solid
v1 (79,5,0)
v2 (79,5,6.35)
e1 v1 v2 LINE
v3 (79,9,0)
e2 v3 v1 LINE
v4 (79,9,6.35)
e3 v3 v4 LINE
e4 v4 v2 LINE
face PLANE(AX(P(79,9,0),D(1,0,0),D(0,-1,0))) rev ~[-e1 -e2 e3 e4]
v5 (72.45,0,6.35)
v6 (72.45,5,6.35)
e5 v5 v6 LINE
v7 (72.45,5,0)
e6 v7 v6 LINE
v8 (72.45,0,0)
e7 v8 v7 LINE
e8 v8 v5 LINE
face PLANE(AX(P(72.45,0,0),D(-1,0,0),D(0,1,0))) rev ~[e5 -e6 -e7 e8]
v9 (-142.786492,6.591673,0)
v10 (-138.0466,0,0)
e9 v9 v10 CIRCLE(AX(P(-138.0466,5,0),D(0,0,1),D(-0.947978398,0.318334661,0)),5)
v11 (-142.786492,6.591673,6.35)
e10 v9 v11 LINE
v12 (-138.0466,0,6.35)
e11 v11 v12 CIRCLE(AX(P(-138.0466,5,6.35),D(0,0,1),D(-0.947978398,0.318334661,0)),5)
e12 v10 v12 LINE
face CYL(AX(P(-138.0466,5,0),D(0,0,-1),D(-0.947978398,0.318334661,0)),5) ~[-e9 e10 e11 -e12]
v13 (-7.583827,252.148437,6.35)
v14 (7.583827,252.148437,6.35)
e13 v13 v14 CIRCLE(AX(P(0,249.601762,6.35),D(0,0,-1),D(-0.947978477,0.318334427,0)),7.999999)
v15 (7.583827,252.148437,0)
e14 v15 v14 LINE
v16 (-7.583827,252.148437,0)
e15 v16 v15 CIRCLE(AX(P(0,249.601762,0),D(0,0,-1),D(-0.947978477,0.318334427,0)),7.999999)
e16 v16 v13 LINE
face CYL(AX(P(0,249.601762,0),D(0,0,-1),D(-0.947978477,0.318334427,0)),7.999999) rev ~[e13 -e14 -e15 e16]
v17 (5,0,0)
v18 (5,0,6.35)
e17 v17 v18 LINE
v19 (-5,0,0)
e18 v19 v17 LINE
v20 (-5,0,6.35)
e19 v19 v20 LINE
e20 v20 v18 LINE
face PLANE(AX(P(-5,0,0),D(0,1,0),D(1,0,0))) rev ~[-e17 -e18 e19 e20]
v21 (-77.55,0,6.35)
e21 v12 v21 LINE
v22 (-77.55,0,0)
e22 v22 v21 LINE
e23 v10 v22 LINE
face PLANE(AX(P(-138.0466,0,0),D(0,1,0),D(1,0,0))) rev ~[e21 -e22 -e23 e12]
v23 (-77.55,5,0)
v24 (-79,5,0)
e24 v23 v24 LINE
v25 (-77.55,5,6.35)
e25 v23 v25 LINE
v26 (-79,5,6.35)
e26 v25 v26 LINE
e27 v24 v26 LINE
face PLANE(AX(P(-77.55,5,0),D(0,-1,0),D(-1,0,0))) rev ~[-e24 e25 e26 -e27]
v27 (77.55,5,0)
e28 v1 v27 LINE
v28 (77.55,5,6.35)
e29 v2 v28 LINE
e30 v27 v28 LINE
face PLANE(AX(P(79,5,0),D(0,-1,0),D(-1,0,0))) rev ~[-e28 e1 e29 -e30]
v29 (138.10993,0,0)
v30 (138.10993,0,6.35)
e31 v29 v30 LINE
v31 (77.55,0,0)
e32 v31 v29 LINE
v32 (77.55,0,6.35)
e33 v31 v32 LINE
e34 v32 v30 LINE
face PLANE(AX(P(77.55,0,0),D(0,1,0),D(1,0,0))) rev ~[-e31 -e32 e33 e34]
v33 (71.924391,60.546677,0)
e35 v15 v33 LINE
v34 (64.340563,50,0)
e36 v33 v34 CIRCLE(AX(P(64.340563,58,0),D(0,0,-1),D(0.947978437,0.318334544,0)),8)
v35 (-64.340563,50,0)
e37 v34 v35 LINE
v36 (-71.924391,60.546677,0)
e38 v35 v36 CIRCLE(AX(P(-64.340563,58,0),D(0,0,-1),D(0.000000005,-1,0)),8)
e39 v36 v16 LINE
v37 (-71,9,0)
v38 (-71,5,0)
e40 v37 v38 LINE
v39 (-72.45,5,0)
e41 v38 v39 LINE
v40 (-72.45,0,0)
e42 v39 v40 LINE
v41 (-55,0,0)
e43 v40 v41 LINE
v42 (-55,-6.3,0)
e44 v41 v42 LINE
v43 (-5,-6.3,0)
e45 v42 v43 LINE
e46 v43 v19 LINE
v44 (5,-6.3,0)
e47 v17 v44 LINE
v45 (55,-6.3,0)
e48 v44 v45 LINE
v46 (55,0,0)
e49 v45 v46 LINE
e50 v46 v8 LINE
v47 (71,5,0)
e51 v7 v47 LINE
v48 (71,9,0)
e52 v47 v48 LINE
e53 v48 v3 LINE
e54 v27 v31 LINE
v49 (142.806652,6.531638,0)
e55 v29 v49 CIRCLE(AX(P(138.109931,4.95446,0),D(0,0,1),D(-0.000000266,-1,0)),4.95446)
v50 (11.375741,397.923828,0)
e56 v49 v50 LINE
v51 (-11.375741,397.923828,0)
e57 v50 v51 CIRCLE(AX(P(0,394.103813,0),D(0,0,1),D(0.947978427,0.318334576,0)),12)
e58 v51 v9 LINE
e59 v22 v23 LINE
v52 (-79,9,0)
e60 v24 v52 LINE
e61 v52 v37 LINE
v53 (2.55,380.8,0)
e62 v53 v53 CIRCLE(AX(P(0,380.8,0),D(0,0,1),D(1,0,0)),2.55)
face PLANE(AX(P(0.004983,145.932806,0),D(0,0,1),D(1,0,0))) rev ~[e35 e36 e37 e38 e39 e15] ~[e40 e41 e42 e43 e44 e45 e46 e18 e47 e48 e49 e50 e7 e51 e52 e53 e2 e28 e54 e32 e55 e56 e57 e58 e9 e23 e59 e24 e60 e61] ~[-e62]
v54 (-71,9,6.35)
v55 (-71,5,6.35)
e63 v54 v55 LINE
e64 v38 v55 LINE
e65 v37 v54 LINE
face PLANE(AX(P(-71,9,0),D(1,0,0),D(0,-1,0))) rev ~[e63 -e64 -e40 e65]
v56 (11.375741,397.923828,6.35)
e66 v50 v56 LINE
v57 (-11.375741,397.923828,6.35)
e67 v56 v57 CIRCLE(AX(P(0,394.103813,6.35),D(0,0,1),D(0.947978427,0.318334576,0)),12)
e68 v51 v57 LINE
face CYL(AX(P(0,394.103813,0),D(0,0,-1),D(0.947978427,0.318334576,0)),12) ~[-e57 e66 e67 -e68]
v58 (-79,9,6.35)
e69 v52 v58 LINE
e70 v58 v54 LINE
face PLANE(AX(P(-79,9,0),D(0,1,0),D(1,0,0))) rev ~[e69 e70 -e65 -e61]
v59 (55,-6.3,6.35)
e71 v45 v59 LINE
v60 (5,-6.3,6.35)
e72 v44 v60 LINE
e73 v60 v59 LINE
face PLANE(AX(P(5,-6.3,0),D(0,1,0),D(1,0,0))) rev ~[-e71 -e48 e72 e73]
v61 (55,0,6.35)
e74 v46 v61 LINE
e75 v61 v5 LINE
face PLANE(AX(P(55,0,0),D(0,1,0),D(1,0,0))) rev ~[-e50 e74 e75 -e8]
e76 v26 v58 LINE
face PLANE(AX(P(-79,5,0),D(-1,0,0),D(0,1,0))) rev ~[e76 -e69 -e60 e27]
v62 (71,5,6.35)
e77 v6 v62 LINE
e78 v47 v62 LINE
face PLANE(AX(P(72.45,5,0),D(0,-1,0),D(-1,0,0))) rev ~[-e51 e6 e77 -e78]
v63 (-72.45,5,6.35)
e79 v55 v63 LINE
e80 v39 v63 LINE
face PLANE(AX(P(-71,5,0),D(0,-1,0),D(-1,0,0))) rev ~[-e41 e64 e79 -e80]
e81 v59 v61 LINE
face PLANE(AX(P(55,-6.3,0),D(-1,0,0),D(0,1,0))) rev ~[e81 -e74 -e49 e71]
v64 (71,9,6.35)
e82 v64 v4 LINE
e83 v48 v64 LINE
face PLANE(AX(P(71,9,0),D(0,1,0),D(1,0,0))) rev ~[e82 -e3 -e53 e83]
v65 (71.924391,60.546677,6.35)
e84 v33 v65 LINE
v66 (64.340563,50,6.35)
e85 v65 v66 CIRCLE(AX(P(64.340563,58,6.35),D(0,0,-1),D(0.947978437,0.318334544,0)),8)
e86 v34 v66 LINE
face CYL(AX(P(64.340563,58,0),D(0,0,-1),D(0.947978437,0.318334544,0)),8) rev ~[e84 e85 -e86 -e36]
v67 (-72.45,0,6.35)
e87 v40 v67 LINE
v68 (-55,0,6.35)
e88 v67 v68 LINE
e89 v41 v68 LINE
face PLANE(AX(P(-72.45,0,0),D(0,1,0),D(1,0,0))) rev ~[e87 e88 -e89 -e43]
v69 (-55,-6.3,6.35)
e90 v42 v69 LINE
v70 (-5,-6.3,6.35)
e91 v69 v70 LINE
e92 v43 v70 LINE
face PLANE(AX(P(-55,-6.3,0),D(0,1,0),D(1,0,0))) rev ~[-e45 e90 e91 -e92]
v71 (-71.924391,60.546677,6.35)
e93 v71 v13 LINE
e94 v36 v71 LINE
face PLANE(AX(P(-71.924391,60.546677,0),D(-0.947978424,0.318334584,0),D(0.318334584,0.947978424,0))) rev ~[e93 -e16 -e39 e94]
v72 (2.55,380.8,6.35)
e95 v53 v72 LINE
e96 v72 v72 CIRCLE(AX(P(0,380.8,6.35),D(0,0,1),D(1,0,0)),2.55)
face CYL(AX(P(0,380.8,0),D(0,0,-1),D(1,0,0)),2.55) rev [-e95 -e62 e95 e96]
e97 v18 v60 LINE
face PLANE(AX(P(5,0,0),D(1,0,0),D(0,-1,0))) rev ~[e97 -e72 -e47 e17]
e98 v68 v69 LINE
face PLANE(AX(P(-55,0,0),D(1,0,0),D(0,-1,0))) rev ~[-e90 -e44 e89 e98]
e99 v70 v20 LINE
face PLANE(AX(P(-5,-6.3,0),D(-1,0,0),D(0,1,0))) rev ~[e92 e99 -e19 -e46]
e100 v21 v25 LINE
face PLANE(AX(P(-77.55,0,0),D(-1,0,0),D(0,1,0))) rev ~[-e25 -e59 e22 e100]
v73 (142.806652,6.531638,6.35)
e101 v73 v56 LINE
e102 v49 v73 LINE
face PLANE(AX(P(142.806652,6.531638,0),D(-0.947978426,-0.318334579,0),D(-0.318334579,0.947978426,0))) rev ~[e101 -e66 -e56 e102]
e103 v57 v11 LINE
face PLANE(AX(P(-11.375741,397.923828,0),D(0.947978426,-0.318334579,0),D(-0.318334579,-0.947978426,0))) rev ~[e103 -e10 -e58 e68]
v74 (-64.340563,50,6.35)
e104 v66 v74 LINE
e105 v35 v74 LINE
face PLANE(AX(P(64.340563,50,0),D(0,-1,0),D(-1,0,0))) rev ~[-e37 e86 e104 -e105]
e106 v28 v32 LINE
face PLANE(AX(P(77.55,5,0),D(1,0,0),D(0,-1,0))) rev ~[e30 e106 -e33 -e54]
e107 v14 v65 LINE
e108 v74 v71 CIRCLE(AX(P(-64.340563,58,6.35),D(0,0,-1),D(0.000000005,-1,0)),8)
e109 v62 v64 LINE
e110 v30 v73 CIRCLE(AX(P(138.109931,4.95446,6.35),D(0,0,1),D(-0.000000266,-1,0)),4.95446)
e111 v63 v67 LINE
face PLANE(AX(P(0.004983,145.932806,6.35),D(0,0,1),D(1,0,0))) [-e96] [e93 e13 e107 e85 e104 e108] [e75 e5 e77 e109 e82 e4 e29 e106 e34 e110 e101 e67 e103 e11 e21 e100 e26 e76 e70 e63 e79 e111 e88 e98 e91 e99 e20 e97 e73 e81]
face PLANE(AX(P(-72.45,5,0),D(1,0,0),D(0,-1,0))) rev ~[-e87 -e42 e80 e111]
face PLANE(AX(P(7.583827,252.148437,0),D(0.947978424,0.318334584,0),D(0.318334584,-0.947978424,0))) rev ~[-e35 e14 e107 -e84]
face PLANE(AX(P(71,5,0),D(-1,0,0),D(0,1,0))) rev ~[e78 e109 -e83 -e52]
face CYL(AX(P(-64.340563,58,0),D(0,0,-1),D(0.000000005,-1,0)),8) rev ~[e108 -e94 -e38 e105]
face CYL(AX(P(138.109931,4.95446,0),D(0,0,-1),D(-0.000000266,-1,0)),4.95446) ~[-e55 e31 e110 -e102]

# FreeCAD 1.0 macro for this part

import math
import FreeCAD as App
import Part
import Sketcher
from FreeCAD import Vector
Q = App.Units.Quantity

doc = App.newDocument("Part")
body = doc.addObject("PartDesign::Body", "Body")

sketch1 = doc.addObject("Sketcher::SketchObject", "Sketch")
body.addObject(sketch1)
sketch1.AttachmentSupport = (doc.XY_Plane, [""])
sketch1.MapMode = "FlatFace"
sketch1.addGeometry([
    Part.LineSegment(Vector(-11.375741, 397.923828, 0), Vector(-142.786492, 6.591673, 0)),
    Part.ArcOfCircle(Part.Circle(Vector(-138.0466, 5, 0), Vector(0, 0, 1), 5), math.radians(161.437758), math.radians(270.000003)),
    Part.LineSegment(Vector(-138.0466, 0, 0), Vector(-77.55, 0, 0)),
    Part.LineSegment(Vector(-77.55, 0, 0), Vector(-77.55, 5, 0)),
    Part.LineSegment(Vector(-77.55, 5, 0), Vector(-79, 5, 0)),
    Part.LineSegment(Vector(-79, 5, 0), Vector(-79, 9, 0)),
    Part.LineSegment(Vector(-79, 9, 0), Vector(-71, 9, 0)),
    Part.LineSegment(Vector(-71, 9, 0), Vector(-71, 5, 0)),
    Part.LineSegment(Vector(-71, 5, 0), Vector(-72.45, 5, 0)),
    Part.LineSegment(Vector(-72.45, 5, 0), Vector(-72.45, 0, 0)),
    Part.LineSegment(Vector(-72.45, 0, 0), Vector(-55, 0, 0)),
    Part.LineSegment(Vector(-55, 0, 0), Vector(-55, -6.3, 0)),
    Part.LineSegment(Vector(-55, -6.3, 0), Vector(-5, -6.3, 0)),
    Part.LineSegment(Vector(-5, -6.3, 0), Vector(-5, 0, 0)),
    Part.LineSegment(Vector(-5, 0, 0), Vector(5, 0, 0)),
    Part.LineSegment(Vector(5, 0, 0), Vector(5, -6.3, 0)),
    Part.LineSegment(Vector(5, -6.3, 0), Vector(55, -6.3, 0)),
    Part.LineSegment(Vector(55, -6.3, 0), Vector(55, 0, 0)),
    Part.LineSegment(Vector(55, 0, 0), Vector(72.45, 0, 0)),
    Part.LineSegment(Vector(72.45, 0, 0), Vector(72.45, 5, 0)),
    Part.LineSegment(Vector(72.45, 5, 0), Vector(71, 5, 0)),
    Part.LineSegment(Vector(71, 5, 0), Vector(71, 9, 0)),
    Part.LineSegment(Vector(71, 9, 0), Vector(79, 9, 0)),
    Part.LineSegment(Vector(79, 9, 0), Vector(79, 5, 0)),
    Part.LineSegment(Vector(79, 5, 0), Vector(77.55, 5, 0)),
    Part.LineSegment(Vector(77.55, 5, 0), Vector(77.55, 0, 0)),
    Part.LineSegment(Vector(77.55, 0, 0), Vector(138.10993, 0, 0)),
    Part.ArcOfCircle(Part.Circle(Vector(138.109931, 4.95446, 0), Vector(0, 0, 1), 4.95446), math.radians(-90.000015), math.radians(18.56226)),
    Part.LineSegment(Vector(142.806652, 6.531638, 0), Vector(11.375741, 397.923828, 0)),
    Part.ArcOfCircle(Part.Circle(Vector(0, 394.103813, 0), Vector(0, 0, 1), 12), math.radians(18.562237), math.radians(161.437763)),
    Part.ArcOfCircle(Part.Circle(Vector(64.340563, 58, 0), Vector(0, 0, 1), 8), math.radians(-90), math.radians(18.562235)),
    Part.LineSegment(Vector(64.340563, 50, 0), Vector(-64.340563, 50, 0)),
    Part.ArcOfCircle(Part.Circle(Vector(-64.340563, 58, 0), Vector(0, 0, 1), 8), math.radians(161.437765), math.radians(270)),
    Part.LineSegment(Vector(-71.924391, 60.546677, 0), Vector(-7.583827, 252.148437, 0)),
    Part.ArcOfCircle(Part.Circle(Vector(0, 249.601762, 0), Vector(0, 0, 1), 7.999999), math.radians(18.562228), math.radians(161.437772)),
    Part.LineSegment(Vector(7.583827, 252.148437, 0), Vector(71.924391, 60.546677, 0)),
    Part.Circle(Vector(0, 380.8, 0), Vector(0, 0, 1), 2.55),
], False)
sketch1.addConstraint([
    Sketcher.Constraint("Coincident", 0, 2, 1, 1),
    Sketcher.Constraint("Coincident", 1, 2, 2, 1),
    Sketcher.Constraint("Coincident", 2, 2, 3, 1),
    Sketcher.Constraint("Coincident", 3, 2, 4, 1),
    Sketcher.Constraint("Coincident", 4, 2, 5, 1),
    Sketcher.Constraint("Coincident", 5, 2, 6, 1),
    Sketcher.Constraint("Coincident", 6, 2, 7, 1),
    Sketcher.Constraint("Coincident", 7, 2, 8, 1),
    Sketcher.Constraint("Coincident", 8, 2, 9, 1),
    Sketcher.Constraint("Coincident", 9, 2, 10, 1),
    Sketcher.Constraint("Coincident", 10, 2, 11, 1),
    Sketcher.Constraint("Coincident", 11, 2, 12, 1),
    Sketcher.Constraint("Coincident", 12, 2, 13, 1),
    Sketcher.Constraint("Coincident", 13, 2, 14, 1),
    Sketcher.Constraint("Coincident", 14, 2, 15, 1),
    Sketcher.Constraint("Coincident", 15, 2, 16, 1),
    Sketcher.Constraint("Coincident", 16, 2, 17, 1),
    Sketcher.Constraint("Coincident", 17, 2, 18, 1),
    Sketcher.Constraint("Coincident", 18, 2, 19, 1),
    Sketcher.Constraint("Coincident", 19, 2, 20, 1),
    Sketcher.Constraint("Coincident", 20, 2, 21, 1),
    Sketcher.Constraint("Coincident", 21, 2, 22, 1),
    Sketcher.Constraint("Coincident", 22, 2, 23, 1),
    Sketcher.Constraint("Coincident", 23, 2, 24, 1),
    Sketcher.Constraint("Coincident", 24, 2, 25, 1),
    Sketcher.Constraint("Coincident", 25, 2, 26, 1),
    Sketcher.Constraint("Coincident", 26, 2, 27, 1),
    Sketcher.Constraint("Coincident", 27, 2, 28, 1),
    Sketcher.Constraint("Coincident", 28, 2, 29, 1),
    Sketcher.Constraint("Coincident", 29, 2, 0, 1),
    Sketcher.Constraint("Coincident", 30, 1, 31, 1),
    Sketcher.Constraint("Coincident", 31, 2, 32, 2),
    Sketcher.Constraint("Coincident", 32, 1, 33, 1),
    Sketcher.Constraint("Coincident", 33, 2, 34, 2),
    Sketcher.Constraint("Coincident", 34, 1, 35, 1),
    Sketcher.Constraint("Coincident", 35, 2, 30, 2),
    Sketcher.Constraint("Horizontal", 2),
    Sketcher.Constraint("Vertical", 3),
    Sketcher.Constraint("Horizontal", 4),
    Sketcher.Constraint("Vertical", 5),
    Sketcher.Constraint("Horizontal", 6),
    Sketcher.Constraint("Vertical", 7),
    Sketcher.Constraint("Horizontal", 8),
    Sketcher.Constraint("Vertical", 9),
    Sketcher.Constraint("Horizontal", 10),
    Sketcher.Constraint("Vertical", 11),
    Sketcher.Constraint("Horizontal", 12),
    Sketcher.Constraint("Vertical", 13),
    Sketcher.Constraint("Horizontal", 14),
    Sketcher.Constraint("Vertical", 15),
    Sketcher.Constraint("Horizontal", 16),
    Sketcher.Constraint("Vertical", 17),
    Sketcher.Constraint("Horizontal", 18),
    Sketcher.Constraint("Vertical", 19),
    Sketcher.Constraint("Horizontal", 20),
    Sketcher.Constraint("Vertical", 21),
    Sketcher.Constraint("Horizontal", 22),
    Sketcher.Constraint("Vertical", 23),
    Sketcher.Constraint("Horizontal", 24),
    Sketcher.Constraint("Vertical", 25),
    Sketcher.Constraint("Horizontal", 26),
    Sketcher.Constraint("Horizontal", 31),
    Sketcher.Constraint("PointOnObject", 29, 3, -2),
    Sketcher.Constraint("PointOnObject", 34, 3, -2),
    Sketcher.Constraint("PointOnObject", 36, 3, -2),
    Sketcher.Constraint("PointOnObject", 1, 2, -1),
    Sketcher.Constraint("PointOnObject", 9, 2, -1),
    Sketcher.Constraint("PointOnObject", 13, 2, -1),
    Sketcher.Constraint("PointOnObject", 17, 2, -1),
    Sketcher.Constraint("PointOnObject", 25, 2, -1),
    Sketcher.Constraint("Radius", 1, Q("5 mm")),
    Sketcher.Constraint("Radius", 29, Q("12 mm")),
    Sketcher.Constraint("Radius", 30, Q("8 mm")),
    Sketcher.Constraint("Radius", 32, Q("8 mm")),
    Sketcher.Constraint("Radius", 34, Q("7.999999 mm")),
    Sketcher.Constraint("Diameter", 36, Q("5.1 mm")),
    Sketcher.Constraint("DistanceX", 6, 1, 6, 2, Q("8 mm")),
    Sketcher.Constraint("DistanceX", 12, 1, 12, 2, Q("50 mm")),
    Sketcher.Constraint("DistanceX", 14, 1, 14, 2, Q("10 mm")),
    Sketcher.Constraint("DistanceX", 16, 1, 16, 2, Q("50 mm")),
    Sketcher.Constraint("DistanceX", 22, 1, 22, 2, Q("8 mm")),
    Sketcher.Constraint("DistanceY", 3, 1, 3, 2, Q("5 mm")),
    Sketcher.Constraint("DistanceY", 5, 1, 5, 2, Q("4 mm")),
    Sketcher.Constraint("DistanceY", 7, 2, 7, 1, Q("4 mm")),
    Sketcher.Constraint("DistanceY", 19, 1, 19, 2, Q("5 mm")),
    Sketcher.Constraint("DistanceY", 21, 1, 21, 2, Q("4 mm")),
    Sketcher.Constraint("DistanceY", 23, 2, 23, 1, Q("4 mm")),
    Sketcher.Constraint("DistanceY", 11, 2, 11, 1, Q("6.3 mm")),
    Sketcher.Constraint("DistanceY", 15, 2, 15, 1, Q("6.3 mm")),
    Sketcher.Constraint("DistanceY", -1, 1, 30, 3, Q("58 mm")),
    Sketcher.Constraint("DistanceX", 4, 2, -1, 1, Q("79 mm")),
    Sketcher.Constraint("DistanceX", 10, 2, -1, 1, Q("55 mm")),
    Sketcher.Constraint("DistanceX", -1, 1, 20, 2, Q("71 mm")),
    Sketcher.Constraint("DistanceX", 4, 2, 4, 1, Q("1.45 mm")),
    Sketcher.Constraint("DistanceX", 8, 2, 8, 1, Q("1.45 mm")),
    Sketcher.Constraint("DistanceX", 18, 1, 18, 2, Q("17.45 mm")),
    Sketcher.Constraint("DistanceX", 24, 2, 24, 1, Q("1.45 mm")),
    Sketcher.Constraint("DistanceY", -1, 1, 36, 3, Q("380.8 mm")),
    Sketcher.Constraint("Radius", 27, Q("4.95446 mm")),
    Sketcher.Constraint("DistanceX", 2, 1, 2, 2, Q("60.4966 mm")),
    Sketcher.Constraint("DistanceX", 26, 1, 26, 2, Q("60.55993 mm")),
    Sketcher.Constraint("DistanceX", 1, 3, -1, 1, Q("138.0466 mm")),
    Sketcher.Constraint("DistanceY", 27, 3, 34, 3, Q("244.647302 mm")),
    Sketcher.Constraint("Distance", 33, Q("202.116161 mm")),
    Sketcher.Constraint("Distance", 35, Q("202.116161 mm")),
    Sketcher.Constraint("DistanceX", 31, 2, 31, 1, Q("128.681126 mm")),
    Sketcher.Constraint("DistanceX", -1, 1, 27, 3, Q("138.109931 mm")),
    Sketcher.Constraint("DistanceY", -1, 1, 27, 2, Q("6.531638 mm")),
    Sketcher.Constraint("DistanceX", -1, 1, 28, 2, Q("11.375741 mm")),
    Sketcher.Constraint("DistanceY", -1, 1, 28, 2, Q("397.923828 mm")),
    Sketcher.Constraint("DistanceX", 29, 2, -1, 1, Q("11.375741 mm")),
    Sketcher.Constraint("DistanceX", 32, 1, -1, 1, Q("71.924391 mm")),
    Sketcher.Constraint("DistanceX", -1, 1, 35, 2, Q("71.924391 mm")),
    Sketcher.Constraint("DistanceX", 30, 3, 27, 3, Q("73.769368 mm")),
    Sketcher.Constraint("DistanceX", 0, 2, 1, 3, Q("4.739892 mm")),
    Sketcher.Constraint("DistanceX", 0, 2, 32, 3, Q("78.445929 mm")),
    Sketcher.Constraint("DistanceX", -1, 1, 30, 1, Q("64.340563 mm")),
])
pad1 = doc.addObject("PartDesign::Pad", "Pad")
body.addObject(pad1)
pad1.Profile = sketch1
pad1.Length = 6.35

doc.recompute()
